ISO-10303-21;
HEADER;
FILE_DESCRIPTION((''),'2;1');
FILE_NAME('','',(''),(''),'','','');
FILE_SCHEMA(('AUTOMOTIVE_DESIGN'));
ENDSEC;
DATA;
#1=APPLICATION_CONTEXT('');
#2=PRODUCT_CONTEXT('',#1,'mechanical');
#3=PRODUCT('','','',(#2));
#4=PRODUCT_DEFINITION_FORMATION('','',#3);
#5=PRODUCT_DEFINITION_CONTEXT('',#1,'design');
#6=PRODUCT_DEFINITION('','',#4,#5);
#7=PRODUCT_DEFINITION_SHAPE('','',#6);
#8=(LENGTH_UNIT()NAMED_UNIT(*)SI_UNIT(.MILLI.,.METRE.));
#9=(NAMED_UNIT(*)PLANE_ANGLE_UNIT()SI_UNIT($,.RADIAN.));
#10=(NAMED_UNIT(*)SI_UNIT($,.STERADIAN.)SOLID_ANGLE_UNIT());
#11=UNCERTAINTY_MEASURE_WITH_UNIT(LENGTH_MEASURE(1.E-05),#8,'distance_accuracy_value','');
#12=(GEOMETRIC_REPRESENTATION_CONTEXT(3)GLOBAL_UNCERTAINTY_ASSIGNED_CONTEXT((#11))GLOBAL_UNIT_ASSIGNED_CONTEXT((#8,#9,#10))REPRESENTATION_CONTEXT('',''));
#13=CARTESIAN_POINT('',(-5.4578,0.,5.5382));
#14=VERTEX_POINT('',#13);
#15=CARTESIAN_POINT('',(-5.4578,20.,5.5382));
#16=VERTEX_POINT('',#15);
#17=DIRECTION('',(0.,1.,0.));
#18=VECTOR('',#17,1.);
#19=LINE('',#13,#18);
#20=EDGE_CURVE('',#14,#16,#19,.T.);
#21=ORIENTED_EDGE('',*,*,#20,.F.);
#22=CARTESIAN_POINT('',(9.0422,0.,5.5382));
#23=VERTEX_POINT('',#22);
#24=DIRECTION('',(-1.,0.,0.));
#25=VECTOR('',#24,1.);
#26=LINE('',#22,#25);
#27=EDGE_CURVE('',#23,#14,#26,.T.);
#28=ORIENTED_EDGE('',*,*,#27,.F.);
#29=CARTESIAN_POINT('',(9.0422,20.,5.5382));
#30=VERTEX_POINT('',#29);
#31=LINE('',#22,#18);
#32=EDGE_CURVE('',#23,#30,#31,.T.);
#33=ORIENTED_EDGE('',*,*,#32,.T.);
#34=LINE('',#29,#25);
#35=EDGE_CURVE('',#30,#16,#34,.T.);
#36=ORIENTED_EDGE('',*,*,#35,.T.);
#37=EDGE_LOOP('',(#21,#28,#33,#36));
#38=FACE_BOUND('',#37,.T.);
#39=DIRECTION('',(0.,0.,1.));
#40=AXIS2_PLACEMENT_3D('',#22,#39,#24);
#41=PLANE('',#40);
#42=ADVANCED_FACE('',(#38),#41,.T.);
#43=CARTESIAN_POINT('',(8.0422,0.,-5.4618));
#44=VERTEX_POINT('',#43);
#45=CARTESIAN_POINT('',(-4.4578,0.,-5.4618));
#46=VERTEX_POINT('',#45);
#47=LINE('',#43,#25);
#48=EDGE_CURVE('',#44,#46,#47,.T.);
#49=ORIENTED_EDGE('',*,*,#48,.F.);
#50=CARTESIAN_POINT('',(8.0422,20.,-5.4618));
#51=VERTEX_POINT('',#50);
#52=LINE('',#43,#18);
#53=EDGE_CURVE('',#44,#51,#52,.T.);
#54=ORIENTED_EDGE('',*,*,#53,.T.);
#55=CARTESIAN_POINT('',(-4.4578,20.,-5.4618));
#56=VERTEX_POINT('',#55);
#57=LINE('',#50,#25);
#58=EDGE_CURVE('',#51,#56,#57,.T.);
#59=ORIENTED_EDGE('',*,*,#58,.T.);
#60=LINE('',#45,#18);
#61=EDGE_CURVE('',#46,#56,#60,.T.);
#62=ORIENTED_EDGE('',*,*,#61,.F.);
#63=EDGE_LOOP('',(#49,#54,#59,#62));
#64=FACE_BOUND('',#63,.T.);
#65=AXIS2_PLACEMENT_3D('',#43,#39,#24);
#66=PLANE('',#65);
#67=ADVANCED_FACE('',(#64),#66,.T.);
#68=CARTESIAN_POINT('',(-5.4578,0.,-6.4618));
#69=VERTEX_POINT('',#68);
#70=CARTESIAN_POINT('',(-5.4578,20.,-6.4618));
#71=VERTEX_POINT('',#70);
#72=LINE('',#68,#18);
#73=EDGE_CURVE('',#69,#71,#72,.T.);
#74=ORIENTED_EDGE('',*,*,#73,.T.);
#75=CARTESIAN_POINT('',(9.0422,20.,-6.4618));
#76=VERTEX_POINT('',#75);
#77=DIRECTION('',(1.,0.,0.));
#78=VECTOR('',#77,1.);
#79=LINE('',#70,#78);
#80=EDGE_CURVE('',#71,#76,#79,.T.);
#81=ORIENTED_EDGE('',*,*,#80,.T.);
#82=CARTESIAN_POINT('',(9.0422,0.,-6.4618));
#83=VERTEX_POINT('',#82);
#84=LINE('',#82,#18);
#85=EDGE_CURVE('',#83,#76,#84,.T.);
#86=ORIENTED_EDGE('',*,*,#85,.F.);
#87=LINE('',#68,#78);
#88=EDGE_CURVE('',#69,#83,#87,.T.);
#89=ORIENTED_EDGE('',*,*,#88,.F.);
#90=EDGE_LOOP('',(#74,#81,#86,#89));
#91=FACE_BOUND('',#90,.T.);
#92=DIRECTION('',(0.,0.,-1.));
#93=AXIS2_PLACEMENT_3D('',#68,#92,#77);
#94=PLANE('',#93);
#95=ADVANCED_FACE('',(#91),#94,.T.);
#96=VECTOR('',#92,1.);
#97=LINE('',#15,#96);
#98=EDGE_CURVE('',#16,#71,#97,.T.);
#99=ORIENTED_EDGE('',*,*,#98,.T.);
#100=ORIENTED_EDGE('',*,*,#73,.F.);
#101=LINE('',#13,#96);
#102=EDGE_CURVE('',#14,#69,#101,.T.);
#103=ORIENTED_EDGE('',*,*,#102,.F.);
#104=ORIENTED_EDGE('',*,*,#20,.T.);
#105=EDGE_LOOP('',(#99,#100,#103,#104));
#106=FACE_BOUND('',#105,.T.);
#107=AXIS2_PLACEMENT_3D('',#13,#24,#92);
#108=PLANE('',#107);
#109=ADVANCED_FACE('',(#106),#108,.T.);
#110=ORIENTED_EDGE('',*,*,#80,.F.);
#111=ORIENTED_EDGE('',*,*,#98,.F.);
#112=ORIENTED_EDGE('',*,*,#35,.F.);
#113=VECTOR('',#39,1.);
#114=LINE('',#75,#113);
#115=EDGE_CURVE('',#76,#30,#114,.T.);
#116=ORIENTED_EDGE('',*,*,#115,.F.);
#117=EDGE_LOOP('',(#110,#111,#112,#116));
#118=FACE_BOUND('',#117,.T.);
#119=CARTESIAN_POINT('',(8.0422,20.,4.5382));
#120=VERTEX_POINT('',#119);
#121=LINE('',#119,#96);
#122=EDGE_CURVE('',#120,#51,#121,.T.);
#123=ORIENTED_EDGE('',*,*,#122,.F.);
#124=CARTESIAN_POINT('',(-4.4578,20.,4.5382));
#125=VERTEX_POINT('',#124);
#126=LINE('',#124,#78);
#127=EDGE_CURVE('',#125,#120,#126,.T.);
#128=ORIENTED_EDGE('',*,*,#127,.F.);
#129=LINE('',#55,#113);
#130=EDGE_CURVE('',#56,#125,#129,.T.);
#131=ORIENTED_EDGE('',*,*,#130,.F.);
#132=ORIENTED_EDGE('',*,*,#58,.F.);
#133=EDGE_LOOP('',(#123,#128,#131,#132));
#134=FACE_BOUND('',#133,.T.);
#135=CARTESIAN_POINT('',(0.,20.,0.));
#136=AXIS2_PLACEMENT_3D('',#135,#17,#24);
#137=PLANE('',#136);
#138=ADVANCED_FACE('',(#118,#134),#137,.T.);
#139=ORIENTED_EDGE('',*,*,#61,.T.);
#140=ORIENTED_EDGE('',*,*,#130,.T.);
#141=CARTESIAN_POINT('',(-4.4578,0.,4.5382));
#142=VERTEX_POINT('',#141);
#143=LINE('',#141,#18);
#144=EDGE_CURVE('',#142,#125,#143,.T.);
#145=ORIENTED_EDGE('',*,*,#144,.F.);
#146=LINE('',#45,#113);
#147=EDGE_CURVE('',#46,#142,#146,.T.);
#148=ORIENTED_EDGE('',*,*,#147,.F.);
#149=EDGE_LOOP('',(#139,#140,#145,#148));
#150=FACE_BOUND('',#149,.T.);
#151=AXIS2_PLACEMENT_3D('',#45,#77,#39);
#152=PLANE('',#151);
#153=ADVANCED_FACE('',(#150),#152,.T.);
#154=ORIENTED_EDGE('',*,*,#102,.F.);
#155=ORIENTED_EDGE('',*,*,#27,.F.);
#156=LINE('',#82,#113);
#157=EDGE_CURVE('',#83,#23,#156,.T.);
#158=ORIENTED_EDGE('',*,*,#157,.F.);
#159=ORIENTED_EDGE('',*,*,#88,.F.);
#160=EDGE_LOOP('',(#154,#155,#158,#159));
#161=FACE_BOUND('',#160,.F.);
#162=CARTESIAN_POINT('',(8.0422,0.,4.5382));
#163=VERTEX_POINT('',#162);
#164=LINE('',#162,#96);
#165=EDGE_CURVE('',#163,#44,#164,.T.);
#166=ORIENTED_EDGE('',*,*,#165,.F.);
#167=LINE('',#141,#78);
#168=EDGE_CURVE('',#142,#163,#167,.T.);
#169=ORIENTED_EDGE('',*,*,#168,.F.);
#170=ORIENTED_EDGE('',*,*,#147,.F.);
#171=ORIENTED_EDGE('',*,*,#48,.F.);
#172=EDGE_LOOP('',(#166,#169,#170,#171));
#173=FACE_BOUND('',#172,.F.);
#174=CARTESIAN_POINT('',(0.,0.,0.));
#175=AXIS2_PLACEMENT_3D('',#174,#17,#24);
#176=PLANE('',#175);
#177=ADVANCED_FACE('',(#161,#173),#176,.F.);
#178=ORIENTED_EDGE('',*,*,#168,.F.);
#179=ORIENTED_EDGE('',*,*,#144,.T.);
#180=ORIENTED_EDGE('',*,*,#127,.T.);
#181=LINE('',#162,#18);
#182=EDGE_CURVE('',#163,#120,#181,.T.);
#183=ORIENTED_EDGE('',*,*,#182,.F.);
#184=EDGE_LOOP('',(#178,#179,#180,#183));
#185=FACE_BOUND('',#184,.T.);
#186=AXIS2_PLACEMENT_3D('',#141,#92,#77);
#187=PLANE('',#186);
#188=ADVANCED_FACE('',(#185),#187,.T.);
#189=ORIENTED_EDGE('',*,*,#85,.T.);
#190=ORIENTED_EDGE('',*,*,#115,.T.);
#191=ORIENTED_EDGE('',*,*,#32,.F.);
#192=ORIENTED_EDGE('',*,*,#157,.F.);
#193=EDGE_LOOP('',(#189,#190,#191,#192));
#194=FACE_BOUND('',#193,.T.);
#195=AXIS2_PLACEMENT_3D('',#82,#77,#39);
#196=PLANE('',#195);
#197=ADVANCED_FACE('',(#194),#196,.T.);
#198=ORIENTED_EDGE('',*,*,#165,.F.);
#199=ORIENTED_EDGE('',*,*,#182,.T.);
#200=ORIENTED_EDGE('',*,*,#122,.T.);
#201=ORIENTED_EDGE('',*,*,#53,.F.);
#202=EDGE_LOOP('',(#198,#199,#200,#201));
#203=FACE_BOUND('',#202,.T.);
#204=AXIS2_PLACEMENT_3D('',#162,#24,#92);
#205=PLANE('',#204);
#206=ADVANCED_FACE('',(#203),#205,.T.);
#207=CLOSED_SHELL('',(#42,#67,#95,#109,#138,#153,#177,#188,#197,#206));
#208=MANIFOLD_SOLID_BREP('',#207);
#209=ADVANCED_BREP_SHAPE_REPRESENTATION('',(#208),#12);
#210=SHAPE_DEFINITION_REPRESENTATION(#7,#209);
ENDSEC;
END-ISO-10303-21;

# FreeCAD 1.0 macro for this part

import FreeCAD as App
import Part
import Sketcher
from FreeCAD import Vector

doc = App.newDocument("Part")
body = doc.addObject("PartDesign::Body", "Body")

# Sketch on XZ plane
sketch1 = body.newObject("Sketcher::SketchObject", "Sketch")
sketch1.AttachmentSupport = (doc.getObject("XZ_Plane"), [""])
sketch1.MapMode = "FlatFace"
sketch1.addGeometry([
    Part.LineSegment(Vector(9.0422, -6.4618, 0), Vector(-5.4578, -6.4618, 0)),  # 0
    Part.LineSegment(Vector(-5.4578, -6.4618, 0), Vector(-5.4578, 5.5382, 0)),  # 1
    Part.LineSegment(Vector(-5.4578, 5.5382, 0), Vector(9.0422, 5.5382, 0)),  # 2
    Part.LineSegment(Vector(9.0422, 5.5382, 0), Vector(9.0422, -6.4618, 0)),  # 3
    Part.LineSegment(Vector(8.0422, 4.5382, 0), Vector(-4.4578, 4.5382, 0)),  # 4
    Part.LineSegment(Vector(-4.4578, 4.5382, 0), Vector(-4.4578, -5.4618, 0)),  # 5
    Part.LineSegment(Vector(-4.4578, -5.4618, 0), Vector(8.0422, -5.4618, 0)),  # 6
    Part.LineSegment(Vector(8.0422, -5.4618, 0), Vector(8.0422, 4.5382, 0)),  # 7
], False)
sketch1.addConstraint([
    Sketcher.Constraint("Coincident", 0, 2, 1, 1),
    Sketcher.Constraint("Coincident", 1, 2, 2, 1),
    Sketcher.Constraint("Coincident", 2, 2, 3, 1),
    Sketcher.Constraint("Coincident", 3, 2, 0, 1),
    Sketcher.Constraint("Coincident", 4, 2, 5, 1),
    Sketcher.Constraint("Coincident", 5, 2, 6, 1),
    Sketcher.Constraint("Coincident", 6, 2, 7, 1),
    Sketcher.Constraint("Coincident", 7, 2, 4, 1),
    Sketcher.Constraint("Horizontal", 0),
    Sketcher.Constraint("Vertical", 1),
    Sketcher.Constraint("Horizontal", 2),
    Sketcher.Constraint("Vertical", 3),
    Sketcher.Constraint("Horizontal", 4),
    Sketcher.Constraint("Vertical", 5),
    Sketcher.Constraint("Horizontal", 6),
    Sketcher.Constraint("Vertical", 7),
    Sketcher.Constraint("DistanceY", 5, 2, 5, 1, 10.0),
    Sketcher.Constraint("DistanceX", 4, 2, 4, 1, 12.5),
    Sketcher.Constraint("DistanceX", 1, 2, 4, 2, 1.0),
    Sketcher.Constraint("DistanceY", 4, 2, 1, 2, 1.0),
    Sketcher.Constraint("DistanceY", 0, 2, 5, 2, 1.0),
    Sketcher.Constraint("DistanceX", 6, 2, 3, 2, 1.0),
    Sketcher.Constraint("DistanceX", 0, 2, -1, 1, 5.4578),
    Sketcher.Constraint("DistanceY", 0, 2, -1, 1, 6.4618),
])
pad1 = body.newObject("PartDesign::Pad", "Pad")
pad1.Profile = sketch1
pad1.Length = 20
pad1.Reversed = True

doc.recompute()
